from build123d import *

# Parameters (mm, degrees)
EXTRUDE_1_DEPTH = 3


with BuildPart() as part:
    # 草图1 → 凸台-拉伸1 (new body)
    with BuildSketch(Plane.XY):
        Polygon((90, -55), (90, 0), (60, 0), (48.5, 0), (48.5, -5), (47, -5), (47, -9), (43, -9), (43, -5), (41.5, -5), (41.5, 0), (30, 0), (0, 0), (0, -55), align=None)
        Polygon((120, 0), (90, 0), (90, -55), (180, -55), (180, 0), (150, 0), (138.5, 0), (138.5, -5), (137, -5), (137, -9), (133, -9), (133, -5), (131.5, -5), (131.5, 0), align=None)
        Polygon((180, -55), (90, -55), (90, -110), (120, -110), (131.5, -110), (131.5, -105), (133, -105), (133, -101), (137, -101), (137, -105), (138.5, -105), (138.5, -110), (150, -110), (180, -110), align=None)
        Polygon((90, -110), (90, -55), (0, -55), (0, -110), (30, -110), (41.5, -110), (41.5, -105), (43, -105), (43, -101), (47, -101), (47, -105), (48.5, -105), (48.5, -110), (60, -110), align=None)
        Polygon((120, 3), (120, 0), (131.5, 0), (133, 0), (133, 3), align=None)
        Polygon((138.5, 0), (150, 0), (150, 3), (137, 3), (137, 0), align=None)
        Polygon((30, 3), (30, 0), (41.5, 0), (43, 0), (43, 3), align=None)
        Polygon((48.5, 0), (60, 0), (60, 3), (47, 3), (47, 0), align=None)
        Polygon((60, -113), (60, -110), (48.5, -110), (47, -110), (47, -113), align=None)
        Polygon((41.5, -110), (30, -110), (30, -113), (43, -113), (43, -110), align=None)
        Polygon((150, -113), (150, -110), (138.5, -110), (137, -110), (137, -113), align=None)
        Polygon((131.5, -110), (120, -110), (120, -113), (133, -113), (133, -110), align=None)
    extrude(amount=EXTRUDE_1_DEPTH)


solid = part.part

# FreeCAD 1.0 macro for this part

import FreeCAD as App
import Part
import Sketcher
from FreeCAD import Vector

doc = App.newDocument("Part")
body = doc.addObject("PartDesign::Body", "Body")

sketch1 = body.newObject("Sketcher::SketchObject", "Sketch")
sketch1.AttachmentSupport = (doc.getObject("XY_Plane"), [""])
sketch1.MapMode = "FlatFace"
sketch1.addGeometry([
    Part.LineSegment(Vector(48.5, 0, 0), Vector(48.5, -5, 0)),
    Part.LineSegment(Vector(48.5, -5, 0), Vector(47, -5, 0)),
    Part.LineSegment(Vector(47, -5, 0), Vector(47, -9, 0)),
    Part.LineSegment(Vector(47, -9, 0), Vector(43, -9, 0)),
    Part.LineSegment(Vector(43, -9, 0), Vector(43, -5, 0)),
    Part.LineSegment(Vector(43, -5, 0), Vector(41.5, -5, 0)),
    Part.LineSegment(Vector(41.5, -5, 0), Vector(41.5, 0, 0)),
    Part.LineSegment(Vector(41.5, 0, 0), Vector(43, 0, 0)),
    Part.LineSegment(Vector(43, 0, 0), Vector(43, 3, 0)),
    Part.LineSegment(Vector(43, 3, 0), Vector(30, 3, 0)),
    Part.LineSegment(Vector(30, 3, 0), Vector(30, 0, 0)),
    Part.LineSegment(Vector(30, 0, 0), Vector(0, 0, 0)),
    Part.LineSegment(Vector(0, 0, 0), Vector(0, -110, 0)),
    Part.LineSegment(Vector(0, -110, 0), Vector(30, -110, 0)),
    Part.LineSegment(Vector(30, -110, 0), Vector(30, -113, 0)),
    Part.LineSegment(Vector(30, -113, 0), Vector(43, -113, 0)),
    Part.LineSegment(Vector(43, -113, 0), Vector(43, -110, 0)),
    Part.LineSegment(Vector(43, -110, 0), Vector(41.5, -110, 0)),
    Part.LineSegment(Vector(41.5, -110, 0), Vector(41.5, -105, 0)),
    Part.LineSegment(Vector(41.5, -105, 0), Vector(43, -105, 0)),
    Part.LineSegment(Vector(43, -105, 0), Vector(43, -101, 0)),
    Part.LineSegment(Vector(43, -101, 0), Vector(47, -101, 0)),
    Part.LineSegment(Vector(47, -101, 0), Vector(47, -105, 0)),
    Part.LineSegment(Vector(47, -105, 0), Vector(48.5, -105, 0)),
    Part.LineSegment(Vector(48.5, -105, 0), Vector(48.5, -110, 0)),
    Part.LineSegment(Vector(48.5, -110, 0), Vector(47, -110, 0)),
    Part.LineSegment(Vector(47, -110, 0), Vector(47, -113, 0)),
    Part.LineSegment(Vector(47, -113, 0), Vector(60, -113, 0)),
    Part.LineSegment(Vector(60, -113, 0), Vector(60, -110, 0)),
    Part.LineSegment(Vector(60, -110, 0), Vector(120, -110, 0)),
    Part.LineSegment(Vector(120, -110, 0), Vector(120, -113, 0)),
    Part.LineSegment(Vector(120, -113, 0), Vector(133, -113, 0)),
    Part.LineSegment(Vector(133, -113, 0), Vector(133, -110, 0)),
    Part.LineSegment(Vector(133, -110, 0), Vector(131.5, -110, 0)),
    Part.LineSegment(Vector(131.5, -110, 0), Vector(131.5, -105, 0)),
    Part.LineSegment(Vector(131.5, -105, 0), Vector(133, -105, 0)),
    Part.LineSegment(Vector(133, -105, 0), Vector(133, -101, 0)),
    Part.LineSegment(Vector(133, -101, 0), Vector(137, -101, 0)),
    Part.LineSegment(Vector(137, -101, 0), Vector(137, -105, 0)),
    Part.LineSegment(Vector(137, -105, 0), Vector(138.5, -105, 0)),
    Part.LineSegment(Vector(138.5, -105, 0), Vector(138.5, -110, 0)),
    Part.LineSegment(Vector(138.5, -110, 0), Vector(137, -110, 0)),
    Part.LineSegment(Vector(137, -110, 0), Vector(137, -113, 0)),
    Part.LineSegment(Vector(137, -113, 0), Vector(150, -113, 0)),
    Part.LineSegment(Vector(150, -113, 0), Vector(150, -110, 0)),
    Part.LineSegment(Vector(150, -110, 0), Vector(180, -110, 0)),
    Part.LineSegment(Vector(180, -110, 0), Vector(180, 0, 0)),
    Part.LineSegment(Vector(180, 0, 0), Vector(150, 0, 0)),
    Part.LineSegment(Vector(150, 0, 0), Vector(150, 3, 0)),
    Part.LineSegment(Vector(150, 3, 0), Vector(137, 3, 0)),
    Part.LineSegment(Vector(137, 3, 0), Vector(137, 0, 0)),
    Part.LineSegment(Vector(137, 0, 0), Vector(138.5, 0, 0)),
    Part.LineSegment(Vector(138.5, 0, 0), Vector(138.5, -5, 0)),
    Part.LineSegment(Vector(138.5, -5, 0), Vector(137, -5, 0)),
    Part.LineSegment(Vector(137, -5, 0), Vector(137, -9, 0)),
    Part.LineSegment(Vector(137, -9, 0), Vector(133, -9, 0)),
    Part.LineSegment(Vector(133, -9, 0), Vector(133, -5, 0)),
    Part.LineSegment(Vector(133, -5, 0), Vector(131.5, -5, 0)),
    Part.LineSegment(Vector(131.5, -5, 0), Vector(131.5, 0, 0)),
    Part.LineSegment(Vector(131.5, 0, 0), Vector(133, 0, 0)),
    Part.LineSegment(Vector(133, 0, 0), Vector(133, 3, 0)),
    Part.LineSegment(Vector(133, 3, 0), Vector(120, 3, 0)),
    Part.LineSegment(Vector(120, 3, 0), Vector(120, 0, 0)),
    Part.LineSegment(Vector(120, 0, 0), Vector(60, 0, 0)),
    Part.LineSegment(Vector(60, 0, 0), Vector(60, 3, 0)),
    Part.LineSegment(Vector(60, 3, 0), Vector(47, 3, 0)),
    Part.LineSegment(Vector(47, 3, 0), Vector(47, 0, 0)),
    Part.LineSegment(Vector(47, 0, 0), Vector(48.5, 0, 0)),
], False)
sketch1.addConstraint([
    Sketcher.Constraint("Coincident", 0, 2, 1, 1),
    Sketcher.Constraint("Coincident", 1, 2, 2, 1),
    Sketcher.Constraint("Coincident", 2, 2, 3, 1),
    Sketcher.Constraint("Coincident", 3, 2, 4, 1),
    Sketcher.Constraint("Coincident", 4, 2, 5, 1),
    Sketcher.Constraint("Coincident", 5, 2, 6, 1),
    Sketcher.Constraint("Coincident", 6, 2, 7, 1),
    Sketcher.Constraint("Coincident", 7, 2, 8, 1),
    Sketcher.Constraint("Coincident", 8, 2, 9, 1),
    Sketcher.Constraint("Coincident", 9, 2, 10, 1),
    Sketcher.Constraint("Coincident", 10, 2, 11, 1),
    Sketcher.Constraint("Coincident", 11, 2, 12, 1),
    Sketcher.Constraint("Coincident", 12, 2, 13, 1),
    Sketcher.Constraint("Coincident", 13, 2, 14, 1),
    Sketcher.Constraint("Coincident", 14, 2, 15, 1),
    Sketcher.Constraint("Coincident", 15, 2, 16, 1),
    Sketcher.Constraint("Coincident", 16, 2, 17, 1),
    Sketcher.Constraint("Coincident", 17, 2, 18, 1),
    Sketcher.Constraint("Coincident", 18, 2, 19, 1),
    Sketcher.Constraint("Coincident", 19, 2, 20, 1),
    Sketcher.Constraint("Coincident", 20, 2, 21, 1),
    Sketcher.Constraint("Coincident", 21, 2, 22, 1),
    Sketcher.Constraint("Coincident", 22, 2, 23, 1),
    Sketcher.Constraint("Coincident", 23, 2, 24, 1),
    Sketcher.Constraint("Coincident", 24, 2, 25, 1),
    Sketcher.Constraint("Coincident", 25, 2, 26, 1),
    Sketcher.Constraint("Coincident", 26, 2, 27, 1),
    Sketcher.Constraint("Coincident", 27, 2, 28, 1),
    Sketcher.Constraint("Coincident", 28, 2, 29, 1),
    Sketcher.Constraint("Coincident", 29, 2, 30, 1),
    Sketcher.Constraint("Coincident", 30, 2, 31, 1),
    Sketcher.Constraint("Coincident", 31, 2, 32, 1),
    Sketcher.Constraint("Coincident", 32, 2, 33, 1),
    Sketcher.Constraint("Coincident", 33, 2, 34, 1),
    Sketcher.Constraint("Coincident", 34, 2, 35, 1),
    Sketcher.Constraint("Coincident", 35, 2, 36, 1),
    Sketcher.Constraint("Coincident", 36, 2, 37, 1),
    Sketcher.Constraint("Coincident", 37, 2, 38, 1),
    Sketcher.Constraint("Coincident", 38, 2, 39, 1),
    Sketcher.Constraint("Coincident", 39, 2, 40, 1),
    Sketcher.Constraint("Coincident", 40, 2, 41, 1),
    Sketcher.Constraint("Coincident", 41, 2, 42, 1),
    Sketcher.Constraint("Coincident", 42, 2, 43, 1),
    Sketcher.Constraint("Coincident", 43, 2, 44, 1),
    Sketcher.Constraint("Coincident", 44, 2, 45, 1),
    Sketcher.Constraint("Coincident", 45, 2, 46, 1),
    Sketcher.Constraint("Coincident", 46, 2, 47, 1),
    Sketcher.Constraint("Coincident", 47, 2, 48, 1),
    Sketcher.Constraint("Coincident", 48, 2, 49, 1),
    Sketcher.Constraint("Coincident", 49, 2, 50, 1),
    Sketcher.Constraint("Coincident", 50, 2, 51, 1),
    Sketcher.Constraint("Coincident", 51, 2, 52, 1),
    Sketcher.Constraint("Coincident", 52, 2, 53, 1),
    Sketcher.Constraint("Coincident", 53, 2, 54, 1),
    Sketcher.Constraint("Coincident", 54, 2, 55, 1),
    Sketcher.Constraint("Coincident", 55, 2, 56, 1),
    Sketcher.Constraint("Coincident", 56, 2, 57, 1),
    Sketcher.Constraint("Coincident", 57, 2, 58, 1),
    Sketcher.Constraint("Coincident", 58, 2, 59, 1),
    Sketcher.Constraint("Coincident", 59, 2, 60, 1),
    Sketcher.Constraint("Coincident", 60, 2, 61, 1),
    Sketcher.Constraint("Coincident", 61, 2, 62, 1),
    Sketcher.Constraint("Coincident", 62, 2, 63, 1),
    Sketcher.Constraint("Coincident", 63, 2, 64, 1),
    Sketcher.Constraint("Coincident", 64, 2, 65, 1),
    Sketcher.Constraint("Coincident", 65, 2, 66, 1),
    Sketcher.Constraint("Coincident", 66, 2, 67, 1),
    Sketcher.Constraint("Coincident", 67, 2, 0, 1),
    Sketcher.Constraint("Vertical", 0),
    Sketcher.Constraint("Horizontal", 1),
    Sketcher.Constraint("Vertical", 2),
    Sketcher.Constraint("Horizontal", 3),
    Sketcher.Constraint("Vertical", 4),
    Sketcher.Constraint("Horizontal", 5),
    Sketcher.Constraint("Vertical", 6),
    Sketcher.Constraint("Horizontal", 7),
    Sketcher.Constraint("Vertical", 8),
    Sketcher.Constraint("Horizontal", 9),
    Sketcher.Constraint("Vertical", 10),
    Sketcher.Constraint("Horizontal", 11),
    Sketcher.Constraint("Vertical", 12),
    Sketcher.Constraint("Horizontal", 13),
    Sketcher.Constraint("Vertical", 14),
    Sketcher.Constraint("Horizontal", 15),
    Sketcher.Constraint("Vertical", 16),
    Sketcher.Constraint("Horizontal", 17),
    Sketcher.Constraint("Vertical", 18),
    Sketcher.Constraint("Horizontal", 19),
    Sketcher.Constraint("Vertical", 20),
    Sketcher.Constraint("Horizontal", 21),
    Sketcher.Constraint("Vertical", 22),
    Sketcher.Constraint("Horizontal", 23),
    Sketcher.Constraint("Vertical", 24),
    Sketcher.Constraint("Horizontal", 25),
    Sketcher.Constraint("Vertical", 26),
    Sketcher.Constraint("Horizontal", 27),
    Sketcher.Constraint("Vertical", 28),
    Sketcher.Constraint("Horizontal", 29),
    Sketcher.Constraint("Vertical", 30),
    Sketcher.Constraint("Horizontal", 31),
    Sketcher.Constraint("Vertical", 32),
    Sketcher.Constraint("Horizontal", 33),
    Sketcher.Constraint("Vertical", 34),
    Sketcher.Constraint("Horizontal", 35),
    Sketcher.Constraint("Vertical", 36),
    Sketcher.Constraint("Horizontal", 37),
    Sketcher.Constraint("Vertical", 38),
    Sketcher.Constraint("Horizontal", 39),
    Sketcher.Constraint("Vertical", 40),
    Sketcher.Constraint("Horizontal", 41),
    Sketcher.Constraint("Vertical", 42),
    Sketcher.Constraint("Horizontal", 43),
    Sketcher.Constraint("Vertical", 44),
    Sketcher.Constraint("Horizontal", 45),
    Sketcher.Constraint("Vertical", 46),
    Sketcher.Constraint("Horizontal", 47),
    Sketcher.Constraint("Vertical", 48),
    Sketcher.Constraint("Horizontal", 49),
    Sketcher.Constraint("Vertical", 50),
    Sketcher.Constraint("Horizontal", 51),
    Sketcher.Constraint("Vertical", 52),
    Sketcher.Constraint("Horizontal", 53),
    Sketcher.Constraint("Vertical", 54),
    Sketcher.Constraint("Horizontal", 55),
    Sketcher.Constraint("Vertical", 56),
    Sketcher.Constraint("Horizontal", 57),
    Sketcher.Constraint("Vertical", 58),
    Sketcher.Constraint("Horizontal", 59),
    Sketcher.Constraint("Vertical", 60),
    Sketcher.Constraint("Horizontal", 61),
    Sketcher.Constraint("Vertical", 62),
    Sketcher.Constraint("Horizontal", 63),
    Sketcher.Constraint("Vertical", 64),
    Sketcher.Constraint("Horizontal", 65),
    Sketcher.Constraint("Vertical", 66),
    Sketcher.Constraint("Horizontal", 67),
    Sketcher.Constraint("Coincident", 11, 2, -1, 1),
    Sketcher.Constraint("PointOnObject", 6, 2, -1),
    Sketcher.Constraint("PointOnObject", 46, 2, -1),
    Sketcher.Constraint("PointOnObject", 50, 2, -1),
    Sketcher.Constraint("PointOnObject", 58, 2, -1),
    Sketcher.Constraint("PointOnObject", 62, 2, -1),
    Sketcher.Constraint("PointOnObject", 66, 2, -1),
    Sketcher.Constraint("Horizontal", 1, 2, 4, 2),
    Sketcher.Constraint("Horizontal", 13, 2, 16, 2),
    Sketcher.Constraint("Horizontal", 19, 2, 22, 2),
    Sketcher.Constraint("Horizontal", 17, 2, 24, 2),
    Sketcher.Constraint("Horizontal", 15, 2, 26, 2),
    Sketcher.Constraint("Horizontal", 25, 2, 28, 2),
    Sketcher.Constraint("Horizontal", 27, 2, 30, 2),
    Sketcher.Constraint("Horizontal", 29, 2, 32, 2),
    Sketcher.Constraint("Horizontal", 23, 2, 34, 2),
    Sketcher.Constraint("Horizontal", 21, 2, 36, 2),
    Sketcher.Constraint("Horizontal", 35, 2, 38, 2),
    Sketcher.Constraint("Horizontal", 33, 2, 40, 2),
    Sketcher.Constraint("Horizontal", 31, 2, 42, 2),
    Sketcher.Constraint("Horizontal", 41, 2, 44, 2),
    Sketcher.Constraint("Horizontal", 9, 2, 48, 2),
    Sketcher.Constraint("Horizontal", 5, 2, 52, 2),
    Sketcher.Constraint("Horizontal", 3, 2, 54, 2),
    Sketcher.Constraint("Horizontal", 53, 2, 56, 2),
    Sketcher.Constraint("Horizontal", 49, 2, 60, 2),
    Sketcher.Constraint("Horizontal", 61, 2, 64, 2),
    Sketcher.Constraint("Vertical", 4, 2, 7, 2),
    Sketcher.Constraint("Vertical", 10, 2, 13, 2),
    Sketcher.Constraint("Vertical", 8, 2, 15, 2),
    Sketcher.Constraint("Vertical", 6, 2, 17, 2),
    Sketcher.Constraint("Vertical", 16, 2, 19, 2),
    Sketcher.Constraint("Vertical", 2, 2, 21, 2),
    Sketcher.Constraint("Vertical", 0, 2, 23, 2),
    Sketcher.Constraint("Vertical", 22, 2, 25, 2),
    Sketcher.Constraint("Vertical", 32, 2, 35, 2),
    Sketcher.Constraint("Vertical", 38, 2, 41, 2),
    Sketcher.Constraint("Vertical", 44, 2, 47, 2),
    Sketcher.Constraint("Vertical", 42, 2, 49, 2),
    Sketcher.Constraint("Vertical", 40, 2, 51, 2),
    Sketcher.Constraint("Vertical", 50, 2, 53, 2),
    Sketcher.Constraint("Vertical", 36, 2, 55, 2),
    Sketcher.Constraint("Vertical", 34, 2, 57, 2),
    Sketcher.Constraint("Vertical", 56, 2, 59, 2),
    Sketcher.Constraint("Vertical", 30, 2, 61, 2),
    Sketcher.Constraint("Vertical", 28, 2, 63, 2),
    Sketcher.Constraint("Vertical", 26, 2, 65, 2),
    Sketcher.Constraint("Equal", 1, 5),
    Sketcher.Constraint("Equal", 15, 27),
    Sketcher.Constraint("Equal", 27, 31),
    Sketcher.Constraint("Equal", 25, 33),
    Sketcher.Constraint("Equal", 21, 37),
    Sketcher.Constraint("Equal", 35, 39),
    Sketcher.Constraint("Equal", 31, 43),
    Sketcher.Constraint("Equal", 13, 45),
    Sketcher.Constraint("Equal", 55, 2),
    Sketcher.Constraint("Equal", 10, 14),
    Sketcher.Constraint("Equal", 6, 18),
    Sketcher.Constraint("Equal", 4, 20),
    Sketcher.Constraint("DistanceX", 3, 2, 3, 1, 4.0),
    Sketcher.Constraint("DistanceX", 9, 2, 9, 1, 13.0),
    Sketcher.Constraint("DistanceX", 11, 2, 11, 1, 30.0),
    Sketcher.Constraint("DistanceX", 29, 1, 29, 2, 60.0),
    Sketcher.Constraint("DistanceY", 0, 2, 0, 1, 5.0),
    Sketcher.Constraint("DistanceY", 8, 1, 8, 2, 3.0),
    Sketcher.Constraint("DistanceY", 12, 2, 12, 1, 110.0),
    Sketcher.Constraint("DistanceX", 1, 2, 1, 1, 1.5),
])
pad1 = body.newObject("PartDesign::Pad", "Pad")
pad1.Profile = sketch1
pad1.Length = 3

doc.recompute()
